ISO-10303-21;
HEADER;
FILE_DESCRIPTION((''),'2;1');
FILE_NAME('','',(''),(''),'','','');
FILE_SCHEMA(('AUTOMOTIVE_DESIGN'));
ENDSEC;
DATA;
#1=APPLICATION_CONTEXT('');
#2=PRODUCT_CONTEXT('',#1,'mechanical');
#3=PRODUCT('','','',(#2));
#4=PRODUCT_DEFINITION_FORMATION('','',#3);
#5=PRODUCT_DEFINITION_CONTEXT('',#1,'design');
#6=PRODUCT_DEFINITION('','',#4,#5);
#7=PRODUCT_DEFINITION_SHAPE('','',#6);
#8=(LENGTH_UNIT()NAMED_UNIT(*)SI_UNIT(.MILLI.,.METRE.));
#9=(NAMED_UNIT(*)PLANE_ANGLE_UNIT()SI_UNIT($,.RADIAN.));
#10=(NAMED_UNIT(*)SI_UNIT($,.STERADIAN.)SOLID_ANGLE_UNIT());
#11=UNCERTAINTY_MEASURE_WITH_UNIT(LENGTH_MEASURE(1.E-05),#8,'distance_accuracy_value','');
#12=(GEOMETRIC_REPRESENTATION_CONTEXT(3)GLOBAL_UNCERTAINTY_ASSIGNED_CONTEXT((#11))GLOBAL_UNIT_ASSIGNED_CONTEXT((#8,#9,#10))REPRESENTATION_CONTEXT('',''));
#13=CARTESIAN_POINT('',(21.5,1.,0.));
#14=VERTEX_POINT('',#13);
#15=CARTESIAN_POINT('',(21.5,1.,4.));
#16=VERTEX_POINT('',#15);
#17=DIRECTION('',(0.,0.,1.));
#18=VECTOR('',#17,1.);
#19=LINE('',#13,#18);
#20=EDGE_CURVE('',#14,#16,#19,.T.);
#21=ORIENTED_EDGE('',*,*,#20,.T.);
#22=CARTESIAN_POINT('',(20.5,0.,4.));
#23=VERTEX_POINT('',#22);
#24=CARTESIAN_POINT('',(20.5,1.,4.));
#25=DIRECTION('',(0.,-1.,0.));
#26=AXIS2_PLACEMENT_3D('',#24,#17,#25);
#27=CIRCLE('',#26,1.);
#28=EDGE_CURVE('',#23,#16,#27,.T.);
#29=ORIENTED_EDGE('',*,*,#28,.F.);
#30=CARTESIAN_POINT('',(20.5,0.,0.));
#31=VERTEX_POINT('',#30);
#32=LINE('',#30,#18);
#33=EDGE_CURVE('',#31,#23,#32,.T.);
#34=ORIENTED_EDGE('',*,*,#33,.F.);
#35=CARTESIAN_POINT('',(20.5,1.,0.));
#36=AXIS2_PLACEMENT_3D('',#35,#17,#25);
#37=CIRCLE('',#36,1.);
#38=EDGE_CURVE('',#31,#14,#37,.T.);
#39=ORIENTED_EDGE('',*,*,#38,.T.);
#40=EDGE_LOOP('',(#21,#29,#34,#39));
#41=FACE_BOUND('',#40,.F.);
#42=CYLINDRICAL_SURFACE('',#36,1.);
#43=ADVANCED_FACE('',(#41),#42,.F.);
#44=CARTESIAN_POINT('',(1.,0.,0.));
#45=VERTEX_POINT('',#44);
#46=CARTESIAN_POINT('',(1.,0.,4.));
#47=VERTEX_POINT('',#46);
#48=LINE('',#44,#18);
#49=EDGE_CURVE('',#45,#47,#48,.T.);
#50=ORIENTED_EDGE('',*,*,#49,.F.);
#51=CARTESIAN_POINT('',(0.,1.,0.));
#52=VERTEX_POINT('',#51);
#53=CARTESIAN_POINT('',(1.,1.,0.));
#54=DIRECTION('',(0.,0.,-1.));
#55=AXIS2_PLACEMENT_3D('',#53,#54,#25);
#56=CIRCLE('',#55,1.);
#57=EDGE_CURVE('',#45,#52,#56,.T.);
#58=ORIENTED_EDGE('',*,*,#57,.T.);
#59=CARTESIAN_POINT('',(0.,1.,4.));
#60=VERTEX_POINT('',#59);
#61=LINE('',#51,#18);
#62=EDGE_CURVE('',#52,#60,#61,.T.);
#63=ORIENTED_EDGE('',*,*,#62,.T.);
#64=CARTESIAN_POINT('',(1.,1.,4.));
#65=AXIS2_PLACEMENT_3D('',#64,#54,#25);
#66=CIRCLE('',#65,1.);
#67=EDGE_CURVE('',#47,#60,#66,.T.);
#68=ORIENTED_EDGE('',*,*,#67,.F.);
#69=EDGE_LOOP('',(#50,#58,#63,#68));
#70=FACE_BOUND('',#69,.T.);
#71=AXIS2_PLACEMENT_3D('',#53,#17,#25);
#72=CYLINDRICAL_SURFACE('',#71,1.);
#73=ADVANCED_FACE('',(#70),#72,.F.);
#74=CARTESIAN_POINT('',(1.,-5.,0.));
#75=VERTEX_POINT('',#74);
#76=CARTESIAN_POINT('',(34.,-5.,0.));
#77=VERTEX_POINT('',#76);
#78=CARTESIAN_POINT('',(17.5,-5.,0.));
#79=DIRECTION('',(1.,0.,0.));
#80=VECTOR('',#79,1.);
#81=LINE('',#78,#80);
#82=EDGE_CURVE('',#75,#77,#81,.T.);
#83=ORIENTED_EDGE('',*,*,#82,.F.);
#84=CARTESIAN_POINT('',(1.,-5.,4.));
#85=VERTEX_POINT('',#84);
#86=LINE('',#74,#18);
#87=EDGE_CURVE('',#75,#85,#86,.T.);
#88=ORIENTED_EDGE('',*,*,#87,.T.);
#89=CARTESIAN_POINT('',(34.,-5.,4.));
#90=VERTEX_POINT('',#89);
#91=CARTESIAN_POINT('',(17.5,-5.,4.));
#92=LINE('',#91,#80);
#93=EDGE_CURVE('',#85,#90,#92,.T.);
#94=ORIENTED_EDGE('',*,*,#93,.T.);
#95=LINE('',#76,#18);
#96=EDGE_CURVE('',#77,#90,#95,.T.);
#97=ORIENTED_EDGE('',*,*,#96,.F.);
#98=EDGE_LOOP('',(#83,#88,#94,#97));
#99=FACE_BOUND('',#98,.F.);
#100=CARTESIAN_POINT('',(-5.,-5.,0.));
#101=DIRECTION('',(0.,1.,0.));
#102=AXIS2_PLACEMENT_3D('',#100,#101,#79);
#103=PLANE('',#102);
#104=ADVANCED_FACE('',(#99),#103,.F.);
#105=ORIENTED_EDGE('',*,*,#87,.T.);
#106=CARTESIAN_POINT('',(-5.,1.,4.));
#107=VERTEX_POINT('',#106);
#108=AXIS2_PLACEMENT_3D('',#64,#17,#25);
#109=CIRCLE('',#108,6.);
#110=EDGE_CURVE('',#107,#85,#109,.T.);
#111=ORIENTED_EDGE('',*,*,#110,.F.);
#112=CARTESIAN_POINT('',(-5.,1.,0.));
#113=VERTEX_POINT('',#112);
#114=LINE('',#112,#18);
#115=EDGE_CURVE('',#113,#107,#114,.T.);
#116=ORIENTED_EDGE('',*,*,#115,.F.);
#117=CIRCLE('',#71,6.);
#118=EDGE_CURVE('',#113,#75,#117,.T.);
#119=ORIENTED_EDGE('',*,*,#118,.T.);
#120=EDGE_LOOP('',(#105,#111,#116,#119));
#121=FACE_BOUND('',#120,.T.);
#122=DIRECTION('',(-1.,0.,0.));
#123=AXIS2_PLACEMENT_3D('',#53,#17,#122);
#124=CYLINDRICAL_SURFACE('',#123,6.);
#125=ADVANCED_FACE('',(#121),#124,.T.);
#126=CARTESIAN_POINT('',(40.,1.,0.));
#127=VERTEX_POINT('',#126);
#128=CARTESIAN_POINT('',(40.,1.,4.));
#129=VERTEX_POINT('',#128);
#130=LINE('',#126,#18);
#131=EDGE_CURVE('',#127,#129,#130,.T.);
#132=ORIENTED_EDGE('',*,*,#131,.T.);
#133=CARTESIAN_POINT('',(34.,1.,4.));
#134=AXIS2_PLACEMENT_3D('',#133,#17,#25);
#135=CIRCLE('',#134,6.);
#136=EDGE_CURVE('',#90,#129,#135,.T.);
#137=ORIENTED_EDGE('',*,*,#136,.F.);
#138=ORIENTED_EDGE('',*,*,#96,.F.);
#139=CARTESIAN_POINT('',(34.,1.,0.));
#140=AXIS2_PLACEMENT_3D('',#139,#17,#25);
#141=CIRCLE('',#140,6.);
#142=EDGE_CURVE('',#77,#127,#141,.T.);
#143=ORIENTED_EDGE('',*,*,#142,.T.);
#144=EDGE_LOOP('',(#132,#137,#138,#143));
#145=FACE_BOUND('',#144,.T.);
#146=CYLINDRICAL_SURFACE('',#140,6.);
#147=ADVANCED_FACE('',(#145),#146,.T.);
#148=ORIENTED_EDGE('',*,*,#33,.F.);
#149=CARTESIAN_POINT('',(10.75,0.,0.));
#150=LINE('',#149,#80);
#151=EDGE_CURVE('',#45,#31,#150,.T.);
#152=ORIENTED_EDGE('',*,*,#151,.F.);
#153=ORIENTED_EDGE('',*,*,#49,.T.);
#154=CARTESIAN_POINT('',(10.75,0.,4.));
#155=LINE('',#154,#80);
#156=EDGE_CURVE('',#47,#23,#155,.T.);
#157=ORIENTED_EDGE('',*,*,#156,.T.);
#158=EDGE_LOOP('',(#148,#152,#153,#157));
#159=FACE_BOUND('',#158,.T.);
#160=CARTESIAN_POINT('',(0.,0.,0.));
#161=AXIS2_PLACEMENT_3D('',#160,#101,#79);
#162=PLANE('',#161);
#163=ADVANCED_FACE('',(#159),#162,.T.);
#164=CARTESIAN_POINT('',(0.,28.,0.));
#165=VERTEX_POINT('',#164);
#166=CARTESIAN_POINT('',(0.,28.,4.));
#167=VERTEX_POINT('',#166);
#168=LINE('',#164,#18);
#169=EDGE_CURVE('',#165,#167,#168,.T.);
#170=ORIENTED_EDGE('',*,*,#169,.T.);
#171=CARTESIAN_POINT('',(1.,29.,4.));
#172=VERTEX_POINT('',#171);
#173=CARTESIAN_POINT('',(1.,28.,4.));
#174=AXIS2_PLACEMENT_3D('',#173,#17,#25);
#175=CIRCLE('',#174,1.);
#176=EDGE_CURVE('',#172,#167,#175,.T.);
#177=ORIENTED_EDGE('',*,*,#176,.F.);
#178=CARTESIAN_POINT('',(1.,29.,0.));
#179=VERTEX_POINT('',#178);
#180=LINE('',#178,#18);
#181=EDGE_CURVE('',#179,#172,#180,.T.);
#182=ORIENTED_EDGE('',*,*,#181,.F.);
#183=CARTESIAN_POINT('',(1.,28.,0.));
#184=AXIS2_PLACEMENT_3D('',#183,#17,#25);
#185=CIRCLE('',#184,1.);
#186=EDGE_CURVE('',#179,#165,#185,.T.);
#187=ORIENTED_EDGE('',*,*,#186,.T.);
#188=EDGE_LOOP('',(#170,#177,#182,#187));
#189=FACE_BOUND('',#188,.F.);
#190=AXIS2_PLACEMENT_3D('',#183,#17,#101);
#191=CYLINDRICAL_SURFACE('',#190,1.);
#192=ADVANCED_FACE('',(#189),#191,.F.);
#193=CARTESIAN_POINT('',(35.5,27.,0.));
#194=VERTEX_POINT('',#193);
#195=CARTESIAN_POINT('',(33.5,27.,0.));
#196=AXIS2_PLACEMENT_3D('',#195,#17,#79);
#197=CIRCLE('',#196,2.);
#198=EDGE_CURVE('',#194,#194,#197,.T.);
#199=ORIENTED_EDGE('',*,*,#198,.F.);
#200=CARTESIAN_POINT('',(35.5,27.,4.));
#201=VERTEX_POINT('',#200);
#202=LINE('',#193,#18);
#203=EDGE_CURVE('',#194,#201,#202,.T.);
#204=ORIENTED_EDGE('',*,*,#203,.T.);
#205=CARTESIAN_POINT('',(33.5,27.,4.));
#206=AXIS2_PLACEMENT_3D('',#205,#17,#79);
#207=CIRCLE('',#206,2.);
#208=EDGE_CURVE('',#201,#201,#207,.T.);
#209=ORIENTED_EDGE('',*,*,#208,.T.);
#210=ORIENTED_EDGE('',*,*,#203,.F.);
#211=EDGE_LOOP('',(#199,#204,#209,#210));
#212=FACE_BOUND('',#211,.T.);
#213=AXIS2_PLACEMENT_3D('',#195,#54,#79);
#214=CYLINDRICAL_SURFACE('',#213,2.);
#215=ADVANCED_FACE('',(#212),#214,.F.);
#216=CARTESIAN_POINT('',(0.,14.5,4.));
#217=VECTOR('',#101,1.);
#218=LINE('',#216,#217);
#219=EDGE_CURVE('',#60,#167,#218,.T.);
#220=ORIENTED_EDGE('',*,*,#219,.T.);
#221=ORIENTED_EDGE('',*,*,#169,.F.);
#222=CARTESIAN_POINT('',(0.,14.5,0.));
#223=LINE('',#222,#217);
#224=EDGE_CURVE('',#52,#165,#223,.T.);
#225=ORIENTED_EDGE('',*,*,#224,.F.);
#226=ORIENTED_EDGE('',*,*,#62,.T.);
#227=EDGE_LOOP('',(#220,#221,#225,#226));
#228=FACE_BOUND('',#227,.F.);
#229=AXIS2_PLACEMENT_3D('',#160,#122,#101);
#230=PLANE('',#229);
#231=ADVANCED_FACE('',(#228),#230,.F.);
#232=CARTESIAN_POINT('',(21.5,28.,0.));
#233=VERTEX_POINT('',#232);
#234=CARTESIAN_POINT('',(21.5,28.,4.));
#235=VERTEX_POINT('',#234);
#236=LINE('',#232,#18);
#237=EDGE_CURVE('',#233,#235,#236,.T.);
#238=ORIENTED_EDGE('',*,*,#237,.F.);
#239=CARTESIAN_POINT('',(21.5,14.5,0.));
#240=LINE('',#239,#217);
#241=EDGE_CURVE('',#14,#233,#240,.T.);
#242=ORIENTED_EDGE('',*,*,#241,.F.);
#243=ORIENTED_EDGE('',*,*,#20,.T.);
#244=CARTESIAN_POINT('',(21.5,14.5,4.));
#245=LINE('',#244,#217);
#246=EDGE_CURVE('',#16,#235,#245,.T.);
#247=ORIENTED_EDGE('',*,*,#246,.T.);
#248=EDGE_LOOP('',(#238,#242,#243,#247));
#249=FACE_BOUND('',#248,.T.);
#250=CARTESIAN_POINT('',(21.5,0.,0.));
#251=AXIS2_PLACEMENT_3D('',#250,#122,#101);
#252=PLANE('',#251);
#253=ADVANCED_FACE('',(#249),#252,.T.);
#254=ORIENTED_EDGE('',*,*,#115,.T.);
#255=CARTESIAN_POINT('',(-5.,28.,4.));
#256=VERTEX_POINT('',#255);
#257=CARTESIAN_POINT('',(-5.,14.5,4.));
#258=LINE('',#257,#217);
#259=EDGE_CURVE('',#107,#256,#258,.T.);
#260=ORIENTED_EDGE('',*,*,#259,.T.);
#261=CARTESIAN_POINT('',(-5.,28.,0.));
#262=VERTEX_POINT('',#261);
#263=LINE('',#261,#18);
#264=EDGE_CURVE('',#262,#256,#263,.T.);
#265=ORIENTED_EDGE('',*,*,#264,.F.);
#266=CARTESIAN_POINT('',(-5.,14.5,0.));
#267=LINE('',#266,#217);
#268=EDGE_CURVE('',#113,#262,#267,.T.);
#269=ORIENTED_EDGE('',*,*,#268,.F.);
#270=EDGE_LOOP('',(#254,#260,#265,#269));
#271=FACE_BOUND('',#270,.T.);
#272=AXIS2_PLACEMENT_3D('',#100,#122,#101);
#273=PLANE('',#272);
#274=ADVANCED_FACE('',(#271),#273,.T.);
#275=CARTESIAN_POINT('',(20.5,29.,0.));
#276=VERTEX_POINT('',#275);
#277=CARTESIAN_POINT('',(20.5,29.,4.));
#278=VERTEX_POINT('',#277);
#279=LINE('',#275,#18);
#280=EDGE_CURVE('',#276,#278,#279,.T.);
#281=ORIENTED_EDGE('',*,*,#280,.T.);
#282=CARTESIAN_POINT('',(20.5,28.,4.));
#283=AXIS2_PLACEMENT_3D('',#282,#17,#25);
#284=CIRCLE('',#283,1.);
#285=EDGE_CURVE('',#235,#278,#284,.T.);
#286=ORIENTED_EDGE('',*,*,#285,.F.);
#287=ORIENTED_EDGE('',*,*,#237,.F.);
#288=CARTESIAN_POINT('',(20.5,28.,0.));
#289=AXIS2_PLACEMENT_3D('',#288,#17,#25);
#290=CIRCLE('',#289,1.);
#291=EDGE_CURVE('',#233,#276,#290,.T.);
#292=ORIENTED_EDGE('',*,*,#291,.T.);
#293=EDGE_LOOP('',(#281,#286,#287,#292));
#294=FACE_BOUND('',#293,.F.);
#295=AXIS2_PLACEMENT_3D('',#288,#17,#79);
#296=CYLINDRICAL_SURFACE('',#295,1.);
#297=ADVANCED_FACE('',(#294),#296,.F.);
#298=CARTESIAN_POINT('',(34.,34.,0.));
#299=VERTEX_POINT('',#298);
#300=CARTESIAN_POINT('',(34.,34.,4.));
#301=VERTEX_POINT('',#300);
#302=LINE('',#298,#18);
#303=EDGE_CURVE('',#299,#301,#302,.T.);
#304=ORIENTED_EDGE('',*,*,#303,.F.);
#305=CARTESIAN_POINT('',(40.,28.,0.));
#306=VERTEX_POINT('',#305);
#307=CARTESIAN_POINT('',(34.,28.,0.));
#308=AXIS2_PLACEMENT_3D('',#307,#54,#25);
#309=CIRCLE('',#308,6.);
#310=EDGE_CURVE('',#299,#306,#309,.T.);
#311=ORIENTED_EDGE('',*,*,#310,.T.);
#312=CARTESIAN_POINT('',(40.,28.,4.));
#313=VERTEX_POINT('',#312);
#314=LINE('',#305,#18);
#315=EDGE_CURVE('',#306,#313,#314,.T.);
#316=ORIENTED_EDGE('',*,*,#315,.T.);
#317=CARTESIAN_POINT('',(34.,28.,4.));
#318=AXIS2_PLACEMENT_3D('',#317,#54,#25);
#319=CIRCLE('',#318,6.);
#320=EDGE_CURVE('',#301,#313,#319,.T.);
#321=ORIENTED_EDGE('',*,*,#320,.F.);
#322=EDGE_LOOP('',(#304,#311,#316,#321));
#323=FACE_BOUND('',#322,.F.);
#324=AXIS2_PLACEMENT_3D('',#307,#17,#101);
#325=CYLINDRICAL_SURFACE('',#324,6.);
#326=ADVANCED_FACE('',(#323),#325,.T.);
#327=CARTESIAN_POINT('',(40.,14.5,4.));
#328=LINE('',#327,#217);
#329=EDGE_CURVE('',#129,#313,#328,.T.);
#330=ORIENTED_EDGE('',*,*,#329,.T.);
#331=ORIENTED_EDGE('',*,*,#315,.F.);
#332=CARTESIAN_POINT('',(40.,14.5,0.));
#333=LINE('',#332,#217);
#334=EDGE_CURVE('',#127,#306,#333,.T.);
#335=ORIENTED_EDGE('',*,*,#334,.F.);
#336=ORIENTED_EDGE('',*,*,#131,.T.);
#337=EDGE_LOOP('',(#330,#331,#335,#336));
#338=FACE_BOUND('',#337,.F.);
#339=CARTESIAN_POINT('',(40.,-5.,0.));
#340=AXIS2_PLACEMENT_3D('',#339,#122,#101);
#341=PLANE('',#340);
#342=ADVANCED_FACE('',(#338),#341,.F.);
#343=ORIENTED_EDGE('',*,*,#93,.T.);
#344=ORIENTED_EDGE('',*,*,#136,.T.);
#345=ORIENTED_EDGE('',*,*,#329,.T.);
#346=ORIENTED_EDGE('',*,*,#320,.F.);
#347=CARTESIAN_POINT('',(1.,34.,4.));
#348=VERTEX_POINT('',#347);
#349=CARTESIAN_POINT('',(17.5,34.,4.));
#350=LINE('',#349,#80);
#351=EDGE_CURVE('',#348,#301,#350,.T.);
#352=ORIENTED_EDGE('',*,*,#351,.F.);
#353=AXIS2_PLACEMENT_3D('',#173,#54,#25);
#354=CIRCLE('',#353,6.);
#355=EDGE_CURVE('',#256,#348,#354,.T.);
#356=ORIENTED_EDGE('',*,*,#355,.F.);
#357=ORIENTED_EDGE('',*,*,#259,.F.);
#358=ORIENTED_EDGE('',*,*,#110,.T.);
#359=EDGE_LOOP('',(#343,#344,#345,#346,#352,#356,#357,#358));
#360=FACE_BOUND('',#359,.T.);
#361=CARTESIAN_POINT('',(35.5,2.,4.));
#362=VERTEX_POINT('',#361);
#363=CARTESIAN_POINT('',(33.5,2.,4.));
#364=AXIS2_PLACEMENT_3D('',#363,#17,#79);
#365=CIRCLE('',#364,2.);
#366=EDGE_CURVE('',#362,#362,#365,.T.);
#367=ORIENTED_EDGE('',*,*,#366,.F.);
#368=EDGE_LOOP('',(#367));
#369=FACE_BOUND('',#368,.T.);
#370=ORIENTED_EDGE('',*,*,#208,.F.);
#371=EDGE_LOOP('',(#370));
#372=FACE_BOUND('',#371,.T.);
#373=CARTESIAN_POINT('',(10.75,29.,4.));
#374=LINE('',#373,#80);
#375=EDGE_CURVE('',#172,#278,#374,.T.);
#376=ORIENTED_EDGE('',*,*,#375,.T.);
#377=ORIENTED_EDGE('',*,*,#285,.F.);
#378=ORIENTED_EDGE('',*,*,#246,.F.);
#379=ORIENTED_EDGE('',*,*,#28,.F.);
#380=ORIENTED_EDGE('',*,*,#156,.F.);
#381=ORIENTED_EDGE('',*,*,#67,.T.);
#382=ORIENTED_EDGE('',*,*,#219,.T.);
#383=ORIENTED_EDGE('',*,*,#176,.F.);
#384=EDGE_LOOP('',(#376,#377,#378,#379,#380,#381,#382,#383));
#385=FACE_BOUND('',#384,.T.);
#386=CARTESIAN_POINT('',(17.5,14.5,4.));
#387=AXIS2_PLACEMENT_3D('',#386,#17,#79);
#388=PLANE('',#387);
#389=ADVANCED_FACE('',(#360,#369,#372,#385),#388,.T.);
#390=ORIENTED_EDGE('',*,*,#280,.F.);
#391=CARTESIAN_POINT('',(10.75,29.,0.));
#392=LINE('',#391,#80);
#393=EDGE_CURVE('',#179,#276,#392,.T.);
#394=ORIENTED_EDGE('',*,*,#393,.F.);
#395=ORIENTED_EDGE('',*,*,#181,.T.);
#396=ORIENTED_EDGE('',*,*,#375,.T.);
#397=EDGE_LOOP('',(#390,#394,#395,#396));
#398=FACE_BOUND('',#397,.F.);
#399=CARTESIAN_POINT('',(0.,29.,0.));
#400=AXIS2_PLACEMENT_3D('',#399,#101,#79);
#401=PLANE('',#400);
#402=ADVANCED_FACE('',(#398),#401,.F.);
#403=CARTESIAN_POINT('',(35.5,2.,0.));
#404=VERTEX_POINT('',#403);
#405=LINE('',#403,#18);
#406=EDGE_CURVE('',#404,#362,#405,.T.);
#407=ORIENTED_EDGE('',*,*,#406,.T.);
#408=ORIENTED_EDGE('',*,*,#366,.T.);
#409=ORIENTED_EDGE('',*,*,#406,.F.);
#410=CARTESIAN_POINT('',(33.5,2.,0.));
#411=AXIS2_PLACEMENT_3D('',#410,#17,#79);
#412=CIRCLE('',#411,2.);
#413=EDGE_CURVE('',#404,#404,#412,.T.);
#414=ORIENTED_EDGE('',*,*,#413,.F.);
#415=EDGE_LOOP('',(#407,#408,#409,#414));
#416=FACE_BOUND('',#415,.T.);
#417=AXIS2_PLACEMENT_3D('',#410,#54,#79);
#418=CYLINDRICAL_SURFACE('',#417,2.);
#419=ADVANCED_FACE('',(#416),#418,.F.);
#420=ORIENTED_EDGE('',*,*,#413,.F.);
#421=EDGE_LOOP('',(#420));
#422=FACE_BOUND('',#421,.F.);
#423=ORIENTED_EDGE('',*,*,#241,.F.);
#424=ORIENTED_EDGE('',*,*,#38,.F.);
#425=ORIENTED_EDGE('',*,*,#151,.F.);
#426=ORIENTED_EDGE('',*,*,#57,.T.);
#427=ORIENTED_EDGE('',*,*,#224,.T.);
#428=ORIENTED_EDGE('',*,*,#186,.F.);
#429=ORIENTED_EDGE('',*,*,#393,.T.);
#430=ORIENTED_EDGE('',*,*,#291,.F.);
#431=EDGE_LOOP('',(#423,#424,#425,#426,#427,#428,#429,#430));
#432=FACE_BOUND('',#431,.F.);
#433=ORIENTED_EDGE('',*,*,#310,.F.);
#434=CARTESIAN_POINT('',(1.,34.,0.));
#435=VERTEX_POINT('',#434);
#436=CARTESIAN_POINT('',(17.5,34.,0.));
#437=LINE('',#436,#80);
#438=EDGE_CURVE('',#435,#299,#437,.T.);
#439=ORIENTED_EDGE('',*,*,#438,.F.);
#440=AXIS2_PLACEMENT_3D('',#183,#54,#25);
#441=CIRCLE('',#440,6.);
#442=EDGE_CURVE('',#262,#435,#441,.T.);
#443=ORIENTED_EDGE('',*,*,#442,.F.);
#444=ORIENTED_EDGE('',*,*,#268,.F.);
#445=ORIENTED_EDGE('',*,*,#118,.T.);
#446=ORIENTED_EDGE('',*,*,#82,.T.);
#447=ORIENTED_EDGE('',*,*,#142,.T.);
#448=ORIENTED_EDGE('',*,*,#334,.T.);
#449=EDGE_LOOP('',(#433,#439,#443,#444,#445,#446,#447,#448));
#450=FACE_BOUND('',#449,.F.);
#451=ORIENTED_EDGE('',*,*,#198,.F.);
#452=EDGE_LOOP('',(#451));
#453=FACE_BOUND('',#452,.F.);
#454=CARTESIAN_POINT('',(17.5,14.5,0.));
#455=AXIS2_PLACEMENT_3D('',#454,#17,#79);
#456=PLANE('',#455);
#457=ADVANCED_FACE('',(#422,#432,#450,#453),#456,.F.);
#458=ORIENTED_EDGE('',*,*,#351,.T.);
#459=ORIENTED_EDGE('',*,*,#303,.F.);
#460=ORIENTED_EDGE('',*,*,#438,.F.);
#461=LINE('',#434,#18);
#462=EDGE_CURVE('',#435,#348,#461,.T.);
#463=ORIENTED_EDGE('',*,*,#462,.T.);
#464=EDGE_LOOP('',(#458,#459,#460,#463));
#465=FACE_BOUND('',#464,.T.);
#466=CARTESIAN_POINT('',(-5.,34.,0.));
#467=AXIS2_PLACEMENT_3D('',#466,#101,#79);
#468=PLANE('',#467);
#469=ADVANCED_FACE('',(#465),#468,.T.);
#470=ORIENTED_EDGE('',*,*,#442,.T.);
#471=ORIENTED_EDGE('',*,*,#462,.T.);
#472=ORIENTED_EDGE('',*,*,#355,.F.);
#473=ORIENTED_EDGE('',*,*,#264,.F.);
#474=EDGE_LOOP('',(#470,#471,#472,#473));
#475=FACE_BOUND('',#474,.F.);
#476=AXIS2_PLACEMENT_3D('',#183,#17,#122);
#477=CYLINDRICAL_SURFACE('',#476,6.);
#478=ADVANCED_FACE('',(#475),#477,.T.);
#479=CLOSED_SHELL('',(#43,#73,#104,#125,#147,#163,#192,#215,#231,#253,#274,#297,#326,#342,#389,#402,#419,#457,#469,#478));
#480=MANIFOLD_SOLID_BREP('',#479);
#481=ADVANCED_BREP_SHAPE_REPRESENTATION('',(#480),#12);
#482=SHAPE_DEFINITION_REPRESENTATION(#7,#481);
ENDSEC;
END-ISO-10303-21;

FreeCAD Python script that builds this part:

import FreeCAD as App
import Part
import Sketcher
from FreeCAD import Vector
Q = App.Units.Quantity


def edges_at(feature, points):
    """Names of the edges that pass closest to the given points."""
    edges = feature.Shape.Edges
    near = lambda p: min(range(len(edges)), key=lambda i: edges[i].distToShape(Part.Vertex(*p))[0])
    return sorted({f"Edge{near(p) + 1}" for p in points})

doc = App.newDocument("Part")
body = doc.addObject("PartDesign::Body", "Body")

# Sketch on XY plane
sketch1 = body.newObject("Sketcher::SketchObject", "Sketch")
sketch1.AttachmentSupport = (doc.getObject("XY_Plane"), [""])
sketch1.MapMode = "FlatFace"
sketch1.addGeometry(Part.LineSegment(Vector(-5, 34, 0), Vector(-5, -5, 0)), False)
sketch1.addGeometry(Part.LineSegment(Vector(-5, -5, 0), Vector(40, -5, 0)), False)
sketch1.addGeometry(Part.LineSegment(Vector(40, -5, 0), Vector(40, 34, 0)), False)
sketch1.addGeometry(Part.LineSegment(Vector(40, 34, 0), Vector(-5, 34, 0)), False)
sketch1.addGeometry(Part.Circle(Vector(33.5, 2, 0), Vector(0, 0, 1), 2), False)
sketch1.addGeometry(Part.LineSegment(Vector(21.5, 0, 0), Vector(0, 0, 0)), False)
sketch1.addGeometry(Part.LineSegment(Vector(0, 0, 0), Vector(0, 29, 0)), False)
sketch1.addGeometry(Part.LineSegment(Vector(0, 29, 0), Vector(21.5, 29, 0)), False)
sketch1.addGeometry(Part.LineSegment(Vector(21.5, 29, 0), Vector(21.5, 0, 0)), False)
sketch1.addGeometry(Part.Circle(Vector(33.5, 27, 0), Vector(0, 0, 1), 2), False)
sketch1.addConstraint(Sketcher.Constraint("Coincident", 0, 2, 1, 1))
sketch1.addConstraint(Sketcher.Constraint("Coincident", 1, 2, 2, 1))
sketch1.addConstraint(Sketcher.Constraint("Coincident", 2, 2, 3, 1))
sketch1.addConstraint(Sketcher.Constraint("Coincident", 3, 2, 0, 1))
sketch1.addConstraint(Sketcher.Constraint("Coincident", 5, 2, 6, 1))
sketch1.addConstraint(Sketcher.Constraint("Coincident", 6, 2, 7, 1))
sketch1.addConstraint(Sketcher.Constraint("Coincident", 7, 2, 8, 1))
sketch1.addConstraint(Sketcher.Constraint("Coincident", 8, 2, 5, 1))
sketch1.addConstraint(Sketcher.Constraint("Vertical", 0))
sketch1.addConstraint(Sketcher.Constraint("Horizontal", 1))
sketch1.addConstraint(Sketcher.Constraint("Vertical", 2))
sketch1.addConstraint(Sketcher.Constraint("Horizontal", 3))
sketch1.addConstraint(Sketcher.Constraint("Horizontal", 5))
sketch1.addConstraint(Sketcher.Constraint("Vertical", 6))
sketch1.addConstraint(Sketcher.Constraint("Horizontal", 7))
sketch1.addConstraint(Sketcher.Constraint("Vertical", 8))
sketch1.addConstraint(Sketcher.Constraint("Coincident", 5, 2, -1, 1))
sketch1.addConstraint(Sketcher.Constraint("Equal", 4, 9))
sketch1.addConstraint(Sketcher.Constraint("Vertical", 4, 3, 9, 3))
sketch1.addConstraint(Sketcher.Constraint("Diameter", 4, Q("4 mm")))
sketch1.addConstraint(Sketcher.Constraint("DistanceX", 1, 1, 1, 2, Q("45 mm")))
sketch1.addConstraint(Sketcher.Constraint("DistanceY", 0, 2, 0, 1, Q("39 mm")))
sketch1.addConstraint(Sketcher.Constraint("DistanceY", 6, 1, 6, 2, Q("29 mm")))
sketch1.addConstraint(Sketcher.Constraint("DistanceX", 5, 2, 5, 1, Q("21.5 mm")))
sketch1.addConstraint(Sketcher.Constraint("DistanceY", -1, 1, 4, 3, Q("2 mm")))
sketch1.addConstraint(Sketcher.Constraint("DistanceY", -1, 1, 9, 3, Q("27 mm")))
sketch1.addConstraint(Sketcher.Constraint("DistanceX", 0, 2, -1, 1, Q("5 mm")))
sketch1.addConstraint(Sketcher.Constraint("DistanceY", 0, 2, -1, 1, Q("5 mm")))
sketch1.addConstraint(Sketcher.Constraint("DistanceX", 7, 2, 9, 3, Q("12 mm")))
pad1 = body.newObject("PartDesign::Pad", "Pad")
pad1.Profile = sketch1
pad1.Length = 4
doc.recompute()

fillet = body.newObject("PartDesign::Fillet", "Fillet")
fillet.Base = (pad1, edges_at(pad1, [(40, -5, 2), (-5, -5, 2)]))
fillet.Radius = 6
doc.recompute()

fillet2 = body.newObject("PartDesign::Fillet", "Fillet001")
fillet2.Base = (fillet, edges_at(fillet, [(-5, 34, 2), (40, 34, 2)]))
fillet2.Radius = 6
doc.recompute()

fillet3 = body.newObject("PartDesign::Fillet", "Fillet002")
fillet3.Base = (fillet2, edges_at(fillet2, [
    (0, 29, 2),
    (0, 0, 2),
    (21.5, 0, 2),
    (21.5, 29, 2),
]))
fillet3.Radius = 1

doc.recompute()
